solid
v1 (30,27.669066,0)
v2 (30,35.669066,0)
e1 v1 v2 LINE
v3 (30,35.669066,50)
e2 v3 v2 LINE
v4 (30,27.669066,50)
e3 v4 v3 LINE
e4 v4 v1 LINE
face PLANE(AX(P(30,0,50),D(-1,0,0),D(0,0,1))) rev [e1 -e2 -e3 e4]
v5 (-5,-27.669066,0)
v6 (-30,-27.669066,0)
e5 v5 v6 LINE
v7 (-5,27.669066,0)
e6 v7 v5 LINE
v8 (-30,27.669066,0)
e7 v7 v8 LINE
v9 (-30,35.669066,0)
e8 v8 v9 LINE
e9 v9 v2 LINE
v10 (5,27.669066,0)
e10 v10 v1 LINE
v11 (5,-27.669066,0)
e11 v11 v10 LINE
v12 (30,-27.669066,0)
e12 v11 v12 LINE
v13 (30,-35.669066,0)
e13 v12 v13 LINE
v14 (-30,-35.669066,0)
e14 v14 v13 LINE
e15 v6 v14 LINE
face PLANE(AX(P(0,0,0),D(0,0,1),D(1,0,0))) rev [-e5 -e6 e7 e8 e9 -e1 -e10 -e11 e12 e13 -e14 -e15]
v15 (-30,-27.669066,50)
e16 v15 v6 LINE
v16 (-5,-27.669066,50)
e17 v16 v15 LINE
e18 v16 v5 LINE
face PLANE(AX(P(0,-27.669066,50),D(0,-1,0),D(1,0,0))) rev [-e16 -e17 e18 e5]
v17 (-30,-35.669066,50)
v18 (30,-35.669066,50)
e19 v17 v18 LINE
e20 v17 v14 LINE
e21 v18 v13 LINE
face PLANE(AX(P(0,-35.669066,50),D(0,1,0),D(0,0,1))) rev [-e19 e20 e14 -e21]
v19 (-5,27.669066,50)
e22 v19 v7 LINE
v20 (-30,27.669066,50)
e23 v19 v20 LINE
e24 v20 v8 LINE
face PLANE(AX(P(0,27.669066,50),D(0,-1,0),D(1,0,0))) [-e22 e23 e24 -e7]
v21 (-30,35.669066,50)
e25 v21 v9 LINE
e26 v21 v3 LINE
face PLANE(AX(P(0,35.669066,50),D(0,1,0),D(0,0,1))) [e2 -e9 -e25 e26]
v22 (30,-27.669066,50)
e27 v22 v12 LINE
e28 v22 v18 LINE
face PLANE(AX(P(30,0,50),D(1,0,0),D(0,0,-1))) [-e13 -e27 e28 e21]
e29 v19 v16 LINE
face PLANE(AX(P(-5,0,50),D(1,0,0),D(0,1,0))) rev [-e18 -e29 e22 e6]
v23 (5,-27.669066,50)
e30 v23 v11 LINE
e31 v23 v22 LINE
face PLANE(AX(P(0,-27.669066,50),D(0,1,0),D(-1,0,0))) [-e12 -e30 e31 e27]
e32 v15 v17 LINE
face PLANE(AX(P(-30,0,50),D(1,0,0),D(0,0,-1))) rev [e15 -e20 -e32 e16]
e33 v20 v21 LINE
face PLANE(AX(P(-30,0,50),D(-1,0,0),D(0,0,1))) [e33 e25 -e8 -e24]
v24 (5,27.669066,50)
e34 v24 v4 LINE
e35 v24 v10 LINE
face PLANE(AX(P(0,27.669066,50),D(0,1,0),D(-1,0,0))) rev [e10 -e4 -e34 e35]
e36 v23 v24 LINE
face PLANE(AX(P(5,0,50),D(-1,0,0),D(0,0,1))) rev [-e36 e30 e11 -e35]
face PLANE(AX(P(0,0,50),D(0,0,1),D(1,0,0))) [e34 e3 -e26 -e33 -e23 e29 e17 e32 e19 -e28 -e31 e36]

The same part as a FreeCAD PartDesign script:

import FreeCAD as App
import Part
import Sketcher
Q = App.Units.Quantity

doc = App.newDocument("Part")
body = doc.addObject("PartDesign::Body", "Body")

# Sketch on XY plane
sketch1 = body.newObject("Sketcher::SketchObject", "Sketch")
sketch1.AttachmentSupport = (doc.getObject("XY_Plane"), [""])
sketch1.MapMode = "FlatFace"
sketch1.addGeometry(Part.LineSegment(App.Vector(-30, -27.669066, 0), App.Vector(-30, -35.669066, 0)), False)
sketch1.addGeometry(Part.LineSegment(App.Vector(-30, -35.669066, 0), App.Vector(30, -35.669066, 0)), False)
sketch1.addGeometry(Part.LineSegment(App.Vector(30, -35.669066, 0), App.Vector(30, -27.669066, 0)), False)
sketch1.addGeometry(Part.LineSegment(App.Vector(30, -27.669066, 0), App.Vector(5, -27.669066, 0)), False)
sketch1.addGeometry(Part.LineSegment(App.Vector(5, -27.669066, 0), App.Vector(5, 27.669066, 0)), False)
sketch1.addGeometry(Part.LineSegment(App.Vector(5, 27.669066, 0), App.Vector(30, 27.669066, 0)), False)
sketch1.addGeometry(Part.LineSegment(App.Vector(30, 27.669066, 0), App.Vector(30, 35.669066, 0)), False)
sketch1.addGeometry(Part.LineSegment(App.Vector(30, 35.669066, 0), App.Vector(-30, 35.669066, 0)), False)
sketch1.addGeometry(Part.LineSegment(App.Vector(-30, 35.669066, 0), App.Vector(-30, 27.669066, 0)), False)
sketch1.addGeometry(Part.LineSegment(App.Vector(-30, 27.669066, 0), App.Vector(-5, 27.669066, 0)), False)
sketch1.addGeometry(Part.LineSegment(App.Vector(-5, 27.669066, 0), App.Vector(-5, -27.669066, 0)), False)
sketch1.addGeometry(Part.LineSegment(App.Vector(-5, -27.669066, 0), App.Vector(-30, -27.669066, 0)), False)
sketch1.addConstraint(Sketcher.Constraint("Coincident", 0, 2, 1, 1))
sketch1.addConstraint(Sketcher.Constraint("Coincident", 1, 2, 2, 1))
sketch1.addConstraint(Sketcher.Constraint("Coincident", 2, 2, 3, 1))
sketch1.addConstraint(Sketcher.Constraint("Coincident", 3, 2, 4, 1))
sketch1.addConstraint(Sketcher.Constraint("Coincident", 4, 2, 5, 1))
sketch1.addConstraint(Sketcher.Constraint("Coincident", 5, 2, 6, 1))
sketch1.addConstraint(Sketcher.Constraint("Coincident", 6, 2, 7, 1))
sketch1.addConstraint(Sketcher.Constraint("Coincident", 7, 2, 8, 1))
sketch1.addConstraint(Sketcher.Constraint("Coincident", 8, 2, 9, 1))
sketch1.addConstraint(Sketcher.Constraint("Coincident", 9, 2, 10, 1))
sketch1.addConstraint(Sketcher.Constraint("Coincident", 10, 2, 11, 1))
sketch1.addConstraint(Sketcher.Constraint("Coincident", 11, 2, 0, 1))
sketch1.addConstraint(Sketcher.Constraint("Vertical", 0))
sketch1.addConstraint(Sketcher.Constraint("Horizontal", 1))
sketch1.addConstraint(Sketcher.Constraint("Vertical", 2))
sketch1.addConstraint(Sketcher.Constraint("Horizontal", 3))
sketch1.addConstraint(Sketcher.Constraint("Vertical", 4))
sketch1.addConstraint(Sketcher.Constraint("Horizontal", 5))
sketch1.addConstraint(Sketcher.Constraint("Vertical", 6))
sketch1.addConstraint(Sketcher.Constraint("Horizontal", 7))
sketch1.addConstraint(Sketcher.Constraint("Vertical", 8))
sketch1.addConstraint(Sketcher.Constraint("Horizontal", 9))
sketch1.addConstraint(Sketcher.Constraint("Vertical", 10))
sketch1.addConstraint(Sketcher.Constraint("Horizontal", 11))
sketch1.addConstraint(Sketcher.Constraint("Symmetric", 0, 2, 6, 2, -1, 1))
sketch1.addConstraint(Sketcher.Constraint("Symmetric", 2, 2, 8, 2, -1, 1))
sketch1.addConstraint(Sketcher.Constraint("Symmetric", 4, 2, 10, 2, -1, 1))
sketch1.addConstraint(Sketcher.Constraint("Symmetric", 5, 2, 8, 2, -2))
sketch1.addConstraint(Sketcher.Constraint("DistanceX", 1, 1, 1, 2, Q("60 mm")))
sketch1.addConstraint(Sketcher.Constraint("DistanceX", 3, 2, 3, 1, Q("25 mm")))
sketch1.addConstraint(Sketcher.Constraint("DistanceY", 0, 2, 0, 1, Q("8 mm")))
sketch1.addConstraint(Sketcher.Constraint("DistanceY", 4, 1, 4, 2, Q("55.338132 mm")))
pad1 = body.newObject("PartDesign::Pad", "Pad")
pad1.Profile = sketch1
pad1.Length = 50

doc.recompute()
